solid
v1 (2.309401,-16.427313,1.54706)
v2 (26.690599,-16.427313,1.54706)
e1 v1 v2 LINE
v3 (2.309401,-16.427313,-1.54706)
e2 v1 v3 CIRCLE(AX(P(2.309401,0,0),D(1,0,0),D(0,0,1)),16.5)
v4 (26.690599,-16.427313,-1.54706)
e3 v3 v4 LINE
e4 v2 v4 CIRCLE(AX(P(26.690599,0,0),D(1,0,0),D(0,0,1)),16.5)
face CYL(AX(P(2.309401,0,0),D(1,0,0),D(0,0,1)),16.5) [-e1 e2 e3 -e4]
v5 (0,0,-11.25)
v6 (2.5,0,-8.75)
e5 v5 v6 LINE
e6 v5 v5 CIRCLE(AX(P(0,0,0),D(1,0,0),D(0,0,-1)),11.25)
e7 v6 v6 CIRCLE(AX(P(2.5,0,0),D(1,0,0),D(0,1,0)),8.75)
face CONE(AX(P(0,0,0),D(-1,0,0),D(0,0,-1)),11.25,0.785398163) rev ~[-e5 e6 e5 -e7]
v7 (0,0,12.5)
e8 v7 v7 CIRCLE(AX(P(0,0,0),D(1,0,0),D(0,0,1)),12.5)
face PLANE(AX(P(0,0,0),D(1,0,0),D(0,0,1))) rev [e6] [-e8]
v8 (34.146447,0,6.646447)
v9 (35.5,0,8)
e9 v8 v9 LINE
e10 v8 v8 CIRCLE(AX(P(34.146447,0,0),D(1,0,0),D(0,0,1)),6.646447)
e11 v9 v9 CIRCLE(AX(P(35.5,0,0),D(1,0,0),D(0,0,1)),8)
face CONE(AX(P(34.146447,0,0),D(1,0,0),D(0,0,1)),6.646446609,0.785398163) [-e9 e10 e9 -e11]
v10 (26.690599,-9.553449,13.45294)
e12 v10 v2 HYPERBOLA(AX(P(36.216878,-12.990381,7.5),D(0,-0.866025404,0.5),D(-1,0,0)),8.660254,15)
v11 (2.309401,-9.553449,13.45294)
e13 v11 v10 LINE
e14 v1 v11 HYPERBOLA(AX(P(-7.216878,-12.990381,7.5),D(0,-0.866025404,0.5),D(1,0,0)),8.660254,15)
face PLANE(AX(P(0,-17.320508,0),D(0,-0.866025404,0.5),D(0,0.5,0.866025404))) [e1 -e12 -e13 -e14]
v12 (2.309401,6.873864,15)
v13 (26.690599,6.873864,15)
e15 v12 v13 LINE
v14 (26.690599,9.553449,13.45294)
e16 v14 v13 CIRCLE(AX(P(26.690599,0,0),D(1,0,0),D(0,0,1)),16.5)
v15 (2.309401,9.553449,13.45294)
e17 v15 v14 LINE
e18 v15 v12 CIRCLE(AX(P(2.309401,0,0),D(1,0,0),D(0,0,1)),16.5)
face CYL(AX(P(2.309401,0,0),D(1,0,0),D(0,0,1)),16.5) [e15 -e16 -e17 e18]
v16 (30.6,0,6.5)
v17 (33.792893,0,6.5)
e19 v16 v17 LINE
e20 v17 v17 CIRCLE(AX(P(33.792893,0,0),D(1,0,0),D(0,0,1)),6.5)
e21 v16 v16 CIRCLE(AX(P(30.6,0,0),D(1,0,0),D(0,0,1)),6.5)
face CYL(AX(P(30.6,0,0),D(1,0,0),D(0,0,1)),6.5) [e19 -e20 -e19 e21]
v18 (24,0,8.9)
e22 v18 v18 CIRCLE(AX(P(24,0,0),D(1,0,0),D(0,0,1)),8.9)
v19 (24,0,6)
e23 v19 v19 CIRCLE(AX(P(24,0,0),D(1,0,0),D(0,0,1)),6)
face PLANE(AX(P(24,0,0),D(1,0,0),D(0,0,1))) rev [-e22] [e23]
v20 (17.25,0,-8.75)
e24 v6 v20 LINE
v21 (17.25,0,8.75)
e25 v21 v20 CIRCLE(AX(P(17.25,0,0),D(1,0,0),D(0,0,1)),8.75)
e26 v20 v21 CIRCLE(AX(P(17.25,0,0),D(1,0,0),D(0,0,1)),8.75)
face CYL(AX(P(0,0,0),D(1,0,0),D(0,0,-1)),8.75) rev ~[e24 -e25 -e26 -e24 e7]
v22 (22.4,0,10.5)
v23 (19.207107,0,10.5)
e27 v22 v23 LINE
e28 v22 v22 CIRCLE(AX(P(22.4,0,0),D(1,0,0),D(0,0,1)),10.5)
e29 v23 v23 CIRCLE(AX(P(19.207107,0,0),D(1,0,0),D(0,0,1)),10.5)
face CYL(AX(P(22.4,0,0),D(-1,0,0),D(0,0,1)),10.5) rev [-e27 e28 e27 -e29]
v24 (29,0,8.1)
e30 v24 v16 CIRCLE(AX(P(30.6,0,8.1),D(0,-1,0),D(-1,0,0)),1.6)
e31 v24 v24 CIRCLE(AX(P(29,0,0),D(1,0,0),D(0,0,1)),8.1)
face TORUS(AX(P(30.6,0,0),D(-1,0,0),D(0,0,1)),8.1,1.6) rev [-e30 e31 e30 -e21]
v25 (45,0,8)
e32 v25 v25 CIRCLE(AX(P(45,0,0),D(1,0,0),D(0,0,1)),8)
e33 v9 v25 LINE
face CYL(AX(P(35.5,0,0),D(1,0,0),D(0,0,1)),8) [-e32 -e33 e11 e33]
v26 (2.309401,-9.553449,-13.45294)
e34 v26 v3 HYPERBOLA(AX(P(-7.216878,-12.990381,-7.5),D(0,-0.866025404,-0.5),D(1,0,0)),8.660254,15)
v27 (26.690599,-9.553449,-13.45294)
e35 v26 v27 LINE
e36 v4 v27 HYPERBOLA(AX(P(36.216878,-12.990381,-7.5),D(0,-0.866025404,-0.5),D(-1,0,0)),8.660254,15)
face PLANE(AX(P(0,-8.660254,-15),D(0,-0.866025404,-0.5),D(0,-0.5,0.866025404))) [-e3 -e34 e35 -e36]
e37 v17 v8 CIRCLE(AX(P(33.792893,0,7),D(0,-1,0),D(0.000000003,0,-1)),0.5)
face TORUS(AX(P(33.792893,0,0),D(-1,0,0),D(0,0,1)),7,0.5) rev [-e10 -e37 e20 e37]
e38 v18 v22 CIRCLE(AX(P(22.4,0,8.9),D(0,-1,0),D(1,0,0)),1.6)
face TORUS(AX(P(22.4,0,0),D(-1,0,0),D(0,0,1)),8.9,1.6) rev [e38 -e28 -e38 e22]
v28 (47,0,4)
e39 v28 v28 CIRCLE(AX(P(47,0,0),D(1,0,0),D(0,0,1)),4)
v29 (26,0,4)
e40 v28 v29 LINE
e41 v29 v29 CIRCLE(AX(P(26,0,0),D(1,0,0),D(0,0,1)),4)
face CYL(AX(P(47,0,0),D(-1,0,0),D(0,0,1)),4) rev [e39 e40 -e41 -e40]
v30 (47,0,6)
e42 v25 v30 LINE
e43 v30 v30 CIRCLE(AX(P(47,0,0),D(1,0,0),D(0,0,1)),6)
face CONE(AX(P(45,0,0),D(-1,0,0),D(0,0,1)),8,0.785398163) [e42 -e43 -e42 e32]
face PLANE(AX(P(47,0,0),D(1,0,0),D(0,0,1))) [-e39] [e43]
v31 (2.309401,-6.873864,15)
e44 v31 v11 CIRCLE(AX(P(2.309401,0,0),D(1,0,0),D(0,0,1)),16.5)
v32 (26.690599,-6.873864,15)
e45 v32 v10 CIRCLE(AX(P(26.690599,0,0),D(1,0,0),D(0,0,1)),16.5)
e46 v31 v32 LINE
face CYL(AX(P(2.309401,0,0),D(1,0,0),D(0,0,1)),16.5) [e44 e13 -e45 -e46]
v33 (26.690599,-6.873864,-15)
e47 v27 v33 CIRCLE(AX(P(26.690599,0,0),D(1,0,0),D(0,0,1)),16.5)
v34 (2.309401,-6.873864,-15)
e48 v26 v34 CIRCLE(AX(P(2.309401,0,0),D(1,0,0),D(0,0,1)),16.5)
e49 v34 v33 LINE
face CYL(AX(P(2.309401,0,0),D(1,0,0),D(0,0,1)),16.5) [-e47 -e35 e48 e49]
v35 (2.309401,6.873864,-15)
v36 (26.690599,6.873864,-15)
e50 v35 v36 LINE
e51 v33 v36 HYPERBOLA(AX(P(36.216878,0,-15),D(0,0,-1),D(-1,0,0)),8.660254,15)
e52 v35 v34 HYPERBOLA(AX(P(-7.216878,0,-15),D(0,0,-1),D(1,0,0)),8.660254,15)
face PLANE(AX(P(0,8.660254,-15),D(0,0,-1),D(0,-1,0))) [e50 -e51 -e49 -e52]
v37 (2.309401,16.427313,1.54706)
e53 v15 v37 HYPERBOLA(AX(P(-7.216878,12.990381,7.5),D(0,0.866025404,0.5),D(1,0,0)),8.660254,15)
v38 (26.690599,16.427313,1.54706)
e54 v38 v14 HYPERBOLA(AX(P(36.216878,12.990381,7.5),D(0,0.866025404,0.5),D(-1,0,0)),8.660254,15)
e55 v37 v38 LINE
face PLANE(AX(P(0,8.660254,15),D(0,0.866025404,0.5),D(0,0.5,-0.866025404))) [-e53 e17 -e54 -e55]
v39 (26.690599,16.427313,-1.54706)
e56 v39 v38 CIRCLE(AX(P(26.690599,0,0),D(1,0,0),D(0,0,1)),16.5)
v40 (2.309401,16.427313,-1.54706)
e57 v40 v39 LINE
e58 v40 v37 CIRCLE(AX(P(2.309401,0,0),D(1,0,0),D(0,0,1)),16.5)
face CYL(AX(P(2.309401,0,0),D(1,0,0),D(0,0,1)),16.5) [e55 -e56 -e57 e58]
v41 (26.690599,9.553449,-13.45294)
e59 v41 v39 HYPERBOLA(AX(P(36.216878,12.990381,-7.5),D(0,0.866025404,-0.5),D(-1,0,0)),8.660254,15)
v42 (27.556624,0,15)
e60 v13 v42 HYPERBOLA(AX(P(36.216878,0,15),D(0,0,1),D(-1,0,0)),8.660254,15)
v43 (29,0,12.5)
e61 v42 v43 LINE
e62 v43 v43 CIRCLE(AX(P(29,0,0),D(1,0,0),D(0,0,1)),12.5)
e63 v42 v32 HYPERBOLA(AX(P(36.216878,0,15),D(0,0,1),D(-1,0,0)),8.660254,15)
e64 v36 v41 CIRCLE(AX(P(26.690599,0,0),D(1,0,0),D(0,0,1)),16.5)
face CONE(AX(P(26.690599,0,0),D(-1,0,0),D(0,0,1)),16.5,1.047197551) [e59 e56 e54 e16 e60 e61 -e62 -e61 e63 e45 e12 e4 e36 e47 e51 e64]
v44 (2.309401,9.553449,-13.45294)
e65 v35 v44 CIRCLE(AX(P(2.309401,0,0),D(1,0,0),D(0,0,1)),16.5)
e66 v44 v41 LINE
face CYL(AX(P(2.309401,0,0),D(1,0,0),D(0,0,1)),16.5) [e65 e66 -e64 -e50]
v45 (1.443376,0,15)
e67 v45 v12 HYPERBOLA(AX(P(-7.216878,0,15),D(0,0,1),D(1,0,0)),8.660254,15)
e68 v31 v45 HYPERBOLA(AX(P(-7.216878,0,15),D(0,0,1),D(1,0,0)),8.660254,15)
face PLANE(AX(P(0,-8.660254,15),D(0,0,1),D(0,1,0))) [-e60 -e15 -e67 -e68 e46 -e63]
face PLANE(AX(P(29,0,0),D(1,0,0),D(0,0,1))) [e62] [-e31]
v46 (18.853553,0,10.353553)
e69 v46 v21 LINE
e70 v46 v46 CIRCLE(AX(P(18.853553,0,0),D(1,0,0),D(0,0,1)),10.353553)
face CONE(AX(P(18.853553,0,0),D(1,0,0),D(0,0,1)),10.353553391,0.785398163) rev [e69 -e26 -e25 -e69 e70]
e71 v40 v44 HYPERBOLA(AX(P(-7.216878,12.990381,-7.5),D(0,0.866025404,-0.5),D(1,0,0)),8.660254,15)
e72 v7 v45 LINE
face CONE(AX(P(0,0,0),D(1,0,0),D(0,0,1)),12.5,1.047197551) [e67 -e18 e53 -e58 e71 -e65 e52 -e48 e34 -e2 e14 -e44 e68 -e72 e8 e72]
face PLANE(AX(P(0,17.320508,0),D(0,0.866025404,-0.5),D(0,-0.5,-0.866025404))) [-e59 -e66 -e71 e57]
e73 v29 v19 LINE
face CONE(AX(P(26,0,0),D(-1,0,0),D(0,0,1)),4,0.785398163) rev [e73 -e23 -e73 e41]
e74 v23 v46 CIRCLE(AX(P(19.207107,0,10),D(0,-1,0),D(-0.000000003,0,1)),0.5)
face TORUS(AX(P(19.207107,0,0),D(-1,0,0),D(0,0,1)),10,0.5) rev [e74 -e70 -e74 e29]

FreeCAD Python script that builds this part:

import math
import FreeCAD as App
import Part
import Sketcher
Q = App.Units.Quantity

doc = App.newDocument("Part")
body = doc.addObject("PartDesign::Body", "Body")

sketch1 = body.newObject("Sketcher::SketchObject", "Sketch")
sketch1.AttachmentSupport = (doc.getObject("XY_Plane"), [""])
sketch1.MapMode = "FlatFace"
sketch1.addGeometry(Part.LineSegment(App.Vector(33.79, 6.5, 0), App.Vector(30.6, 6.5, 0)), False)
sketch1.addGeometry(Part.ArcOfCircle(Part.Circle(App.Vector(30.6, 8.1, 0), App.Vector(0, 0, 1), 1.6), math.radians(180), math.radians(270)), False)
sketch1.addGeometry(Part.LineSegment(App.Vector(29, 8.1, 0), App.Vector(29, 12.5, 0)), False)
sketch1.addGeometry(Part.LineSegment(App.Vector(29, 12.5, 0), App.Vector(26.69, 16.5, 0)), False)
sketch1.addGeometry(Part.LineSegment(App.Vector(26.69, 16.5, 0), App.Vector(2.31, 16.5, 0)), False)
sketch1.addGeometry(Part.LineSegment(App.Vector(2.31, 16.5, 0), App.Vector(0, 12.5, 0)), False)
sketch1.addGeometry(Part.LineSegment(App.Vector(0, 12.5, 0), App.Vector(0, 0, 0)), False)
sketch1.addGeometry(Part.LineSegment(App.Vector(0, 0, 0), App.Vector(8.5, 0, 0)), False)
sketch1.addGeometry(Part.LineSegment(App.Vector(8.5, 0, 0), App.Vector(18.85, 10.35, 0)), False)
sketch1.addGeometry(Part.ArcOfCircle(Part.Circle(App.Vector(19.21, 10, 0), App.Vector(0, 0, 1), 0.5), math.radians(90), math.radians(135)), False)
sketch1.addGeometry(Part.LineSegment(App.Vector(19.21, 10.5, 0), App.Vector(22.4, 10.5, 0)), False)
sketch1.addGeometry(Part.ArcOfCircle(Part.Circle(App.Vector(22.4, 8.9, 0), App.Vector(0, 0, 1), 1.6), math.radians(0), math.radians(90)), False)
sketch1.addGeometry(Part.LineSegment(App.Vector(24, 8.9, 0), App.Vector(24, 6, 0)), False)
sketch1.addGeometry(Part.LineSegment(App.Vector(24, 6, 0), App.Vector(26, 4, 0)), False)
sketch1.addGeometry(Part.LineSegment(App.Vector(26, 4, 0), App.Vector(47, 4, 0)), False)
sketch1.addGeometry(Part.LineSegment(App.Vector(47, 4, 0), App.Vector(47, 6, 0)), False)
sketch1.addGeometry(Part.LineSegment(App.Vector(47, 6, 0), App.Vector(45, 8, 0)), False)
sketch1.addGeometry(Part.LineSegment(App.Vector(45, 8, 0), App.Vector(35.5, 8, 0)), False)
sketch1.addGeometry(Part.LineSegment(App.Vector(35.5, 8, 0), App.Vector(34.15, 6.65, 0)), False)
sketch1.addGeometry(Part.ArcOfCircle(Part.Circle(App.Vector(33.79, 7, 0), App.Vector(0, 0, 1), 0.5), math.radians(-90), math.radians(-45)), False)
sketch1.addConstraint(Sketcher.Constraint("Tangent", 0, 2, 1, 2))
sketch1.addConstraint(Sketcher.Constraint("Tangent", 1, 1, 2, 1))
sketch1.addConstraint(Sketcher.Constraint("Coincident", 2, 2, 3, 1))
sketch1.addConstraint(Sketcher.Constraint("Coincident", 3, 2, 4, 1))
sketch1.addConstraint(Sketcher.Constraint("Coincident", 4, 2, 5, 1))
sketch1.addConstraint(Sketcher.Constraint("Coincident", 5, 2, 6, 1))
sketch1.addConstraint(Sketcher.Constraint("Coincident", 6, 2, 7, 1))
sketch1.addConstraint(Sketcher.Constraint("Coincident", 7, 2, 8, 1))
sketch1.addConstraint(Sketcher.Constraint("Tangent", 8, 2, 9, 2))
sketch1.addConstraint(Sketcher.Constraint("Tangent", 9, 1, 10, 1))
sketch1.addConstraint(Sketcher.Constraint("Tangent", 10, 2, 11, 2))
sketch1.addConstraint(Sketcher.Constraint("Tangent", 11, 1, 12, 1))
sketch1.addConstraint(Sketcher.Constraint("Coincident", 12, 2, 13, 1))
sketch1.addConstraint(Sketcher.Constraint("Coincident", 13, 2, 14, 1))
sketch1.addConstraint(Sketcher.Constraint("Coincident", 14, 2, 15, 1))
sketch1.addConstraint(Sketcher.Constraint("Coincident", 15, 2, 16, 1))
sketch1.addConstraint(Sketcher.Constraint("Coincident", 16, 2, 17, 1))
sketch1.addConstraint(Sketcher.Constraint("Coincident", 17, 2, 18, 1))
sketch1.addConstraint(Sketcher.Constraint("Tangent", 18, 2, 19, 2))
sketch1.addConstraint(Sketcher.Constraint("Tangent", 19, 1, 0, 1))
sketch1.addConstraint(Sketcher.Constraint("Horizontal", 0))
sketch1.addConstraint(Sketcher.Constraint("Vertical", 2))
sketch1.addConstraint(Sketcher.Constraint("Horizontal", 4))
sketch1.addConstraint(Sketcher.Constraint("Vertical", 6))
sketch1.addConstraint(Sketcher.Constraint("Horizontal", 7))
sketch1.addConstraint(Sketcher.Constraint("Horizontal", 10))
sketch1.addConstraint(Sketcher.Constraint("Vertical", 12))
sketch1.addConstraint(Sketcher.Constraint("Horizontal", 14))
sketch1.addConstraint(Sketcher.Constraint("Vertical", 15))
sketch1.addConstraint(Sketcher.Constraint("Horizontal", 17))
sketch1.addConstraint(Sketcher.Constraint("Coincident", 6, 2, -1, 1))
sketch1.addConstraint(Sketcher.Constraint("Equal", 1, 11))
sketch1.addConstraint(Sketcher.Constraint("Equal", 9, 19))
sketch1.addConstraint(Sketcher.Constraint("Perpendicular", 8, 13))
sketch1.addConstraint(Sketcher.Constraint("Parallel", 13, 16))
sketch1.addConstraint(Sketcher.Constraint("Perpendicular", 16, 18))
sketch1.addConstraint(Sketcher.Constraint("Horizontal", 2, 2, 5, 2))
sketch1.addConstraint(Sketcher.Constraint("Horizontal", 12, 2, 15, 2))
sketch1.addConstraint(Sketcher.Constraint("Equal", 0, 10))
sketch1.addConstraint(Sketcher.Constraint("Equal", 3, 5))
sketch1.addConstraint(Sketcher.Constraint("Equal", 13, 16))
sketch1.addConstraint(Sketcher.Constraint("Radius", 1, Q("1.6 mm")))
sketch1.addConstraint(Sketcher.Constraint("Radius", 9, Q("0.5 mm")))
sketch1.addConstraint(Sketcher.Constraint("DistanceX", 14, 1, 14, 2, Q("21 mm")))
sketch1.addConstraint(Sketcher.Constraint("DistanceY", 15, 1, 15, 2, Q("2 mm")))
sketch1.addConstraint(Sketcher.Constraint("Angle", 3, Q("120 deg")))
sketch1.addConstraint(Sketcher.Constraint("Angle", 8, Q("45 deg")))
sketch1.addConstraint(Sketcher.Constraint("DistanceX", 7, 1, 7, 2, Q("8.5 mm")))
sketch1.addConstraint(Sketcher.Constraint("DistanceX", 17, 2, 17, 1, Q("9.5 mm")))
sketch1.addConstraint(Sketcher.Constraint("DistanceY", 2, 1, 2, 2, Q("4.4 mm")))
sketch1.addConstraint(Sketcher.Constraint("DistanceY", 6, 2, 6, 1, Q("12.5 mm")))
sketch1.addConstraint(Sketcher.Constraint("DistanceY", 12, 2, 12, 1, Q("2.9 mm")))
sketch1.addConstraint(Sketcher.Constraint("DistanceY", -1, 1, 9, 3, Q("10 mm")))
sketch1.addConstraint(Sketcher.Constraint("DistanceX", -1, 1, 11, 1, Q("24 mm")))
sketch1.addConstraint(Sketcher.Constraint("DistanceY", 2, 2, 3, 2, Q("4 mm")))
revolution = body.newObject("PartDesign::Revolution", "Revolution")
revolution.Profile = sketch1
revolution.ReferenceAxis = (sketch1, ["H_Axis"])
revolution.Angle = 360

sketch2 = body.newObject("Sketcher::SketchObject", "Sketch001")
sketch2.AttachmentSupport = (doc.getObject("YZ_Plane"), [""])
sketch2.MapMode = "FlatFace"
sketch2.addGeometry(Part.Circle(App.Vector(0, 0, 0), App.Vector(0, 0, 1), 9), False)
sketch2.addConstraint(Sketcher.Constraint("Coincident", 0, 3, -1, 1))
sketch2.addConstraint(Sketcher.Constraint("Diameter", 0, Q("17.5 mm")))
doc.recompute()
hole = body.newObject("PartDesign::Hole", "Hole")
hole.Profile = sketch2
hole.ThreadType = "None"
hole.Diameter = 17.5
hole.DepthType = "Dimension"
hole.Depth = 23.999
hole.DrillPoint = "Flat"
hole.HoleCutType = "Countersink"
hole.HoleCutDiameter = 22.5
hole.HoleCutCountersinkAngle = 90
hole.Reversed = True

sketch3 = body.newObject("Sketcher::SketchObject", "Sketch002")
sketch3.AttachmentSupport = (doc.getObject("YZ_Plane"), [""])
sketch3.MapMode = "FlatFace"
sketch3.addGeometry(Part.LineSegment(App.Vector(24, -24, 0), App.Vector(-24, -24, 0)), False)
sketch3.addGeometry(Part.LineSegment(App.Vector(-24, -24, 0), App.Vector(-24, 24, 0)), False)
sketch3.addGeometry(Part.LineSegment(App.Vector(-24, 24, 0), App.Vector(24, 24, 0)), False)
sketch3.addGeometry(Part.LineSegment(App.Vector(24, 24, 0), App.Vector(24, -24, 0)), False)
sketch3.addGeometry(Part.LineSegment(App.Vector(9, -15, 0), App.Vector(17, 0, 0)), False)
sketch3.addGeometry(Part.LineSegment(App.Vector(17, 0, 0), App.Vector(9, 15, 0)), False)
sketch3.addGeometry(Part.LineSegment(App.Vector(9, 15, 0), App.Vector(-9, 15, 0)), False)
sketch3.addGeometry(Part.LineSegment(App.Vector(-9, 15, 0), App.Vector(-17, 0, 0)), False)
sketch3.addGeometry(Part.LineSegment(App.Vector(-17, 0, 0), App.Vector(-9, -15, 0)), False)
sketch3.addGeometry(Part.LineSegment(App.Vector(-9, -15, 0), App.Vector(9, -15, 0)), False)
sketch3.addConstraint(Sketcher.Constraint("Coincident", 0, 2, 1, 1))
sketch3.addConstraint(Sketcher.Constraint("Coincident", 1, 2, 2, 1))
sketch3.addConstraint(Sketcher.Constraint("Coincident", 2, 2, 3, 1))
sketch3.addConstraint(Sketcher.Constraint("Coincident", 3, 2, 0, 1))
sketch3.addConstraint(Sketcher.Constraint("Coincident", 4, 2, 5, 1))
sketch3.addConstraint(Sketcher.Constraint("Coincident", 5, 2, 6, 1))
sketch3.addConstraint(Sketcher.Constraint("Coincident", 6, 2, 7, 1))
sketch3.addConstraint(Sketcher.Constraint("Coincident", 7, 2, 8, 1))
sketch3.addConstraint(Sketcher.Constraint("Coincident", 8, 2, 9, 1))
sketch3.addConstraint(Sketcher.Constraint("Coincident", 9, 2, 4, 1))
sketch3.addConstraint(Sketcher.Constraint("Horizontal", 0))
sketch3.addConstraint(Sketcher.Constraint("Vertical", 1))
sketch3.addConstraint(Sketcher.Constraint("Horizontal", 2))
sketch3.addConstraint(Sketcher.Constraint("Vertical", 3))
sketch3.addConstraint(Sketcher.Constraint("Horizontal", 6))
sketch3.addConstraint(Sketcher.Constraint("Horizontal", 9))
sketch3.addConstraint(Sketcher.Constraint("Symmetric", 0, 2, 2, 2, -1, 1))
sketch3.addConstraint(Sketcher.Constraint("Symmetric", 4, 2, 7, 2, -1, 1))
sketch3.addConstraint(Sketcher.Constraint("Symmetric", 5, 2, 8, 2, -1, 1))
sketch3.addConstraint(Sketcher.Constraint("PointOnObject", 4, 2, -1))
sketch3.addConstraint(Sketcher.Constraint("Parallel", 4, 7))
sketch3.addConstraint(Sketcher.Constraint("Vertical", 6, 2, 8, 2))
sketch3.addConstraint(Sketcher.Constraint("Equal", 2, 1))
sketch3.addConstraint(Sketcher.Constraint("Angle", 4, Q("60 deg")))
sketch3.addConstraint(Sketcher.Constraint("DistanceY", -1, 1, 5, 2, Q("15 mm")))
sketch3.addConstraint(Sketcher.Constraint("DistanceX", 0, 2, 0, 1, Q("48.246 mm")))
sketch3.addConstraint(Sketcher.Constraint("DistanceX", 6, 2, 6, 1, Q("17.320508 mm")))
pocket1 = body.newObject("PartDesign::Pocket", "Pocket")
pocket1.Profile = sketch3
pocket1.Type = "ThroughAll"
pocket1.Reversed = True

doc.recompute()
